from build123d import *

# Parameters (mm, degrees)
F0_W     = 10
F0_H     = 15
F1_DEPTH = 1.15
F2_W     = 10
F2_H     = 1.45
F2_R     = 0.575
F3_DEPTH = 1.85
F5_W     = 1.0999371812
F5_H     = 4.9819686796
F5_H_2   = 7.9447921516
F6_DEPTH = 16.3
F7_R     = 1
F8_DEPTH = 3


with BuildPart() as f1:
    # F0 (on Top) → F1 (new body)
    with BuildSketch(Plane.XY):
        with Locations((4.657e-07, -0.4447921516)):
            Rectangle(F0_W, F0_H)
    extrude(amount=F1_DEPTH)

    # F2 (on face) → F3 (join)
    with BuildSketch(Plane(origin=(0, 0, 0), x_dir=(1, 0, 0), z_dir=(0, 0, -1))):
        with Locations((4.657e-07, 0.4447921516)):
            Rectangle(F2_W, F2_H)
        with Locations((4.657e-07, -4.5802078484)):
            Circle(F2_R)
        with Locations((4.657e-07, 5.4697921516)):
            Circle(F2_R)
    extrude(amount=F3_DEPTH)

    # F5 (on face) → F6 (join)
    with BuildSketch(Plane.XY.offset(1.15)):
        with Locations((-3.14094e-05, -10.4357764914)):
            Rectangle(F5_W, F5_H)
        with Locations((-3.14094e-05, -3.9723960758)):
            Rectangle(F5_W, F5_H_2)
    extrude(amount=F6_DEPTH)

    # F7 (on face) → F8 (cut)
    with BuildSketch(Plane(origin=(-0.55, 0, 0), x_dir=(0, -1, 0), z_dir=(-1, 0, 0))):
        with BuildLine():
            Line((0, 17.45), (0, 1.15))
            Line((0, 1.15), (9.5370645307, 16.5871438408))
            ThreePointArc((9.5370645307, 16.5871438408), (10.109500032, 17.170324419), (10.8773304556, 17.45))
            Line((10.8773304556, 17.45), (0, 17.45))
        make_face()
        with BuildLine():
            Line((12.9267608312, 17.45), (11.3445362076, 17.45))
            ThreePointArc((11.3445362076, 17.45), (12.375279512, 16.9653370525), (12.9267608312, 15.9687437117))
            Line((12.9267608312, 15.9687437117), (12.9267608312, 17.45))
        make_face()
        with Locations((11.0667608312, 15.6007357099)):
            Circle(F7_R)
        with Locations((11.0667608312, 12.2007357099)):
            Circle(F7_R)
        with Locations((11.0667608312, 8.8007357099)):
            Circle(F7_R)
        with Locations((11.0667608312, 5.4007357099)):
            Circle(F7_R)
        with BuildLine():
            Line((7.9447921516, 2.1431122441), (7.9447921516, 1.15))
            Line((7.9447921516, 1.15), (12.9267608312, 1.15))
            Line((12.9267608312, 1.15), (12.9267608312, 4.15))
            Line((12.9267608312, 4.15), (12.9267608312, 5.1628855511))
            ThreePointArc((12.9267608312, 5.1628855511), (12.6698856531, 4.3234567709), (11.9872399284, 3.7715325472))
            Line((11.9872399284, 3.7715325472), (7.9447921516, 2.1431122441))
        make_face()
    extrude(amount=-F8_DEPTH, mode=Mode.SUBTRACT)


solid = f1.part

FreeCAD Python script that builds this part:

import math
import FreeCAD as App
import Part
import Sketcher
from FreeCAD import Vector


def add_polygon(sketch, points):
    """Adds a closed chain of lines whose ends are joined by coincident constraints."""
    first, n = sketch.GeometryCount, len(points)
    for a, b in zip(points, points[1:] + points[:1]):
        sketch.addGeometry(Part.LineSegment(App.Vector(*a, 0), App.Vector(*b, 0)), False)
    for i in range(n):
        sketch.addConstraint(Sketcher.Constraint("Coincident", first + i, 2, first + (i + 1) % n, 1))

doc = App.newDocument("Part")
body = doc.addObject("PartDesign::Body", "Body")

# Sketch on XY plane
sketch1 = body.newObject("Sketcher::SketchObject", "Sketch")
sketch1.AttachmentSupport = (doc.getObject("XY_Plane"), [""])
sketch1.MapMode = "FlatFace"
add_polygon(sketch1, [(-5, 7), (-5, -8), (5, -8), (5, 7)])  # lines 0-3
sketch1.addConstraint(Sketcher.Constraint("Vertical", 0))
sketch1.addConstraint(Sketcher.Constraint("Horizontal", 1))
sketch1.addConstraint(Sketcher.Constraint("Vertical", 2))
sketch1.addConstraint(Sketcher.Constraint("Horizontal", 3))
sketch1.addConstraint(Sketcher.Constraint("DistanceX", 1, 1, 1, 2, 10.0))
sketch1.addConstraint(Sketcher.Constraint("DistanceY", 0, 2, 0, 1, 15.0))
sketch1.addConstraint(Sketcher.Constraint("DistanceX", 0, 2, -1, 1, 5.0))
sketch1.addConstraint(Sketcher.Constraint("DistanceY", 0, 2, -1, 1, 7.944792))
pad1 = body.newObject("PartDesign::Pad", "Pad")
pad1.Profile = sketch1
pad1.Length = 1.15

# Sketch on XY plane
sketch2 = body.newObject("Sketcher::SketchObject", "Sketch001")
sketch2.AttachmentSupport = (doc.getObject("XY_Plane"), [""])
sketch2.MapMode = "FlatFace"
add_polygon(sketch2, [(-5, -1.2), (-5, 0.3), (5, 0.3), (5, -1.2)])  # lines 0-3
sketch2.addGeometry(Part.Circle(Vector(0, 4.6, 0), Vector(0, 0, 1), 0.6), False)  # 4
sketch2.addGeometry(Part.Circle(Vector(0, -5.5, 0), Vector(0, 0, 1), 0.6), False)  # 5
sketch2.addConstraint(Sketcher.Constraint("Vertical", 0))
sketch2.addConstraint(Sketcher.Constraint("Horizontal", 1))
sketch2.addConstraint(Sketcher.Constraint("Vertical", 2))
sketch2.addConstraint(Sketcher.Constraint("Horizontal", 3))
sketch2.addConstraint(Sketcher.Constraint("Equal", 4, 5))
sketch2.addConstraint(Sketcher.Constraint("PointOnObject", 4, 3, -2))
sketch2.addConstraint(Sketcher.Constraint("PointOnObject", 5, 3, -2))
sketch2.addConstraint(Sketcher.Constraint("Diameter", 4, 1.15))
sketch2.addConstraint(Sketcher.Constraint("DistanceX", 1, 1, 1, 2, 10.0))
sketch2.addConstraint(Sketcher.Constraint("DistanceX", 0, 2, -1, 1, 5.0))
sketch2.addConstraint(Sketcher.Constraint("DistanceY", 0, 1, 0, 2, 1.45))
sketch2.addConstraint(Sketcher.Constraint("DistanceY", 0, 2, 4, 3, 4.3))
sketch2.addConstraint(Sketcher.Constraint("DistanceY", 5, 3, 2, 2, 4.3))
sketch2.addConstraint(Sketcher.Constraint("DistanceY", -1, 1, 4, 3, 4.580208))
pad2 = body.newObject("PartDesign::Pad", "Pad001")
pad2.Profile = sketch2
pad2.Length = 1.85
pad2.Reversed = True

# Sketch on XY plane
sketch3 = body.newObject("Sketcher::SketchObject", "Sketch002")
sketch3.AttachmentSupport = (doc.getObject("XY_Plane"), [""])
sketch3.MapMode = "FlatFace"
sketch3.AttachmentOffset = App.Placement(Vector(0, 0, 1.15), App.Rotation())
add_polygon(sketch3, [(-0.6, -12.9), (0.5, -12.9), (0.5, 0), (-0.6, 0)])  # lines 0-3
sketch3.addConstraint(Sketcher.Constraint("Horizontal", 0))
sketch3.addConstraint(Sketcher.Constraint("Vertical", 1))
sketch3.addConstraint(Sketcher.Constraint("Horizontal", 2))
sketch3.addConstraint(Sketcher.Constraint("Vertical", 3))
sketch3.addConstraint(Sketcher.Constraint("PointOnObject", 1, 2, -1))
sketch3.addConstraint(Sketcher.Constraint("DistanceX", 2, 2, -1, 1, 0.55))
sketch3.addConstraint(Sketcher.Constraint("DistanceY", 1, 1, 1, 2, 12.926761))
sketch3.addConstraint(Sketcher.Constraint("DistanceX", 0, 1, 0, 2, 1.099937))
pad3 = body.newObject("PartDesign::Pad", "Pad002")
pad3.Profile = sketch3
pad3.Length = 16.3

# Sketch on YZ plane
sketch4 = body.newObject("Sketcher::SketchObject", "Sketch003")
sketch4.AttachmentSupport = (doc.getObject("YZ_Plane"), [""])
sketch4.MapMode = "FlatFace"
sketch4.AttachmentOffset = App.Placement(Vector(0, 0, -0.55), App.Rotation())
sketch4.addGeometry(Part.LineSegment(Vector(0, 17.4, 0), Vector(0, 1.1, 0)), False)
sketch4.addGeometry(Part.LineSegment(Vector(0, 1.1, 0), Vector(-9.5, 16.6, 0)), False)
sketch4.addGeometry(Part.ArcOfCircle(Part.Circle(Vector(-11.1, 15.6, 0), Vector(0, 0, 1), 1.9), math.radians(32), math.radians(83)), False)
sketch4.addGeometry(Part.LineSegment(Vector(-10.9, 17.4, 0), Vector(0, 17.4, 0)), False)
sketch4.addGeometry(Part.LineSegment(Vector(-12.9, 17.4, 0), Vector(-11.3, 17.4, 0)), False)
sketch4.addGeometry(Part.ArcOfCircle(Part.Circle(Vector(-11.1, 15.6, 0), Vector(0, 0, 1), 1.9), math.radians(97), math.radians(169)), False)
sketch4.addGeometry(Part.LineSegment(Vector(-12.9, 16, 0), Vector(-12.9, 17.4, 0)), False)
sketch4.addGeometry(Part.Circle(Vector(-11.1, 15.6, 0), Vector(0, 0, 1), 1), False)
sketch4.addGeometry(Part.Circle(Vector(-11.1, 12.2, 0), Vector(0, 0, 1), 1), False)
sketch4.addGeometry(Part.Circle(Vector(-11.1, 8.8, 0), Vector(0, 0, 1), 1), False)
sketch4.addGeometry(Part.Circle(Vector(-11.1, 5.4, 0), Vector(0, 0, 1), 1), False)
sketch4.addGeometry(Part.LineSegment(Vector(-7.9, 2.1, 0), Vector(-7.9, 1.1, 0)), False)
sketch4.addGeometry(Part.LineSegment(Vector(-7.9, 1.1, 0), Vector(-12.9, 1.1, 0)), False)
sketch4.addGeometry(Part.LineSegment(Vector(-12.9, 1.1, 0), Vector(-12.9, 5.2, 0)), False)
sketch4.addGeometry(Part.ArcOfCircle(Part.Circle(Vector(-11.4, 5.2, 0), Vector(0, 0, 1), 1.5), math.radians(180), math.radians(248)), False)
sketch4.addGeometry(Part.LineSegment(Vector(-12, 3.8, 0), Vector(-7.9, 2.1, 0)), False)
sketch4.addConstraint(Sketcher.Constraint("Coincident", 0, 2, 1, 1))
sketch4.addConstraint(Sketcher.Constraint("Tangent", 1, 2, 2, 1))
sketch4.addConstraint(Sketcher.Constraint("Coincident", 2, 2, 3, 1))
sketch4.addConstraint(Sketcher.Constraint("Coincident", 3, 2, 0, 1))
sketch4.addConstraint(Sketcher.Constraint("Coincident", 4, 2, 5, 1))
sketch4.addConstraint(Sketcher.Constraint("Coincident", 5, 2, 6, 1))
sketch4.addConstraint(Sketcher.Constraint("Coincident", 6, 2, 4, 1))
sketch4.addConstraint(Sketcher.Constraint("Coincident", 11, 2, 12, 1))
sketch4.addConstraint(Sketcher.Constraint("Coincident", 12, 2, 13, 1))
sketch4.addConstraint(Sketcher.Constraint("Tangent", 13, 2, 14, 1))
sketch4.addConstraint(Sketcher.Constraint("Tangent", 14, 2, 15, 1))
sketch4.addConstraint(Sketcher.Constraint("Coincident", 15, 2, 11, 1))
sketch4.addConstraint(Sketcher.Constraint("Vertical", 0))
sketch4.addConstraint(Sketcher.Constraint("Horizontal", 3))
sketch4.addConstraint(Sketcher.Constraint("Horizontal", 4))
sketch4.addConstraint(Sketcher.Constraint("Vertical", 6))
sketch4.addConstraint(Sketcher.Constraint("Vertical", 11))
sketch4.addConstraint(Sketcher.Constraint("Horizontal", 12))
sketch4.addConstraint(Sketcher.Constraint("Vertical", 13))
sketch4.addConstraint(Sketcher.Constraint("Coincident", 5, 3, 2, 3))
sketch4.addConstraint(Sketcher.Constraint("Equal", 2, 5))
sketch4.addConstraint(Sketcher.Constraint("Equal", 7, 8))
sketch4.addConstraint(Sketcher.Constraint("Equal", 8, 9))
sketch4.addConstraint(Sketcher.Constraint("Equal", 9, 10))
sketch4.addConstraint(Sketcher.Constraint("PointOnObject", 0, 2, -2))
sketch4.addConstraint(Sketcher.Constraint("Horizontal", 3, 2, 4, 2))
sketch4.addConstraint(Sketcher.Constraint("Horizontal", 0, 2, 11, 2))
sketch4.addConstraint(Sketcher.Constraint("Vertical", 7, 3, 8, 3))
sketch4.addConstraint(Sketcher.Constraint("Vertical", 8, 3, 9, 3))
sketch4.addConstraint(Sketcher.Constraint("Vertical", 9, 3, 10, 3))
sketch4.addConstraint(Sketcher.Constraint("Vertical", 6, 2, 12, 2))
sketch4.addConstraint(Sketcher.Constraint("Diameter", 7, 2.0))
sketch4.addConstraint(Sketcher.Constraint("Radius", 14, 1.5))
sketch4.addConstraint(Sketcher.Constraint("Radius", 2, 1.85))
sketch4.addConstraint(Sketcher.Constraint("DistanceY", 0, 2, 0, 1, 16.3))
sketch4.addConstraint(Sketcher.Constraint("DistanceY", 8, 3, 7, 3, 3.4))
sketch4.addConstraint(Sketcher.Constraint("DistanceY", 9, 3, 8, 3, 3.4))
sketch4.addConstraint(Sketcher.Constraint("DistanceY", 10, 3, 9, 3, 3.4))
sketch4.addConstraint(Sketcher.Constraint("DistanceY", -1, 1, 0, 2, 1.15))
sketch4.addConstraint(Sketcher.Constraint("DistanceX", 14, 3, 10, 3, 0.36))
sketch4.addConstraint(Sketcher.Constraint("DistanceX", 3, 1, 3, 2, 10.87733))
sketch4.addConstraint(Sketcher.Constraint("DistanceX", 12, 2, 12, 1, 4.981969))
sketch4.addConstraint(Sketcher.Constraint("Distance", 1, 18.145551))
sketch4.addConstraint(Sketcher.Constraint("Distance", 15, 4.358112))
sketch4.addConstraint(Sketcher.Constraint("DistanceX", 4, 1, 4, 2, 1.582225))
sketch4.addConstraint(Sketcher.Constraint("DistanceY", 11, 2, 11, 1, 0.993112))
sketch4.addConstraint(Sketcher.Constraint("DistanceY", 14, 3, 10, 3, 0.23785))
pocket1 = body.newObject("PartDesign::Pocket", "Pocket")
pocket1.Profile = sketch4
pocket1.Length = 3
pocket1.Reversed = True

doc.recompute()
